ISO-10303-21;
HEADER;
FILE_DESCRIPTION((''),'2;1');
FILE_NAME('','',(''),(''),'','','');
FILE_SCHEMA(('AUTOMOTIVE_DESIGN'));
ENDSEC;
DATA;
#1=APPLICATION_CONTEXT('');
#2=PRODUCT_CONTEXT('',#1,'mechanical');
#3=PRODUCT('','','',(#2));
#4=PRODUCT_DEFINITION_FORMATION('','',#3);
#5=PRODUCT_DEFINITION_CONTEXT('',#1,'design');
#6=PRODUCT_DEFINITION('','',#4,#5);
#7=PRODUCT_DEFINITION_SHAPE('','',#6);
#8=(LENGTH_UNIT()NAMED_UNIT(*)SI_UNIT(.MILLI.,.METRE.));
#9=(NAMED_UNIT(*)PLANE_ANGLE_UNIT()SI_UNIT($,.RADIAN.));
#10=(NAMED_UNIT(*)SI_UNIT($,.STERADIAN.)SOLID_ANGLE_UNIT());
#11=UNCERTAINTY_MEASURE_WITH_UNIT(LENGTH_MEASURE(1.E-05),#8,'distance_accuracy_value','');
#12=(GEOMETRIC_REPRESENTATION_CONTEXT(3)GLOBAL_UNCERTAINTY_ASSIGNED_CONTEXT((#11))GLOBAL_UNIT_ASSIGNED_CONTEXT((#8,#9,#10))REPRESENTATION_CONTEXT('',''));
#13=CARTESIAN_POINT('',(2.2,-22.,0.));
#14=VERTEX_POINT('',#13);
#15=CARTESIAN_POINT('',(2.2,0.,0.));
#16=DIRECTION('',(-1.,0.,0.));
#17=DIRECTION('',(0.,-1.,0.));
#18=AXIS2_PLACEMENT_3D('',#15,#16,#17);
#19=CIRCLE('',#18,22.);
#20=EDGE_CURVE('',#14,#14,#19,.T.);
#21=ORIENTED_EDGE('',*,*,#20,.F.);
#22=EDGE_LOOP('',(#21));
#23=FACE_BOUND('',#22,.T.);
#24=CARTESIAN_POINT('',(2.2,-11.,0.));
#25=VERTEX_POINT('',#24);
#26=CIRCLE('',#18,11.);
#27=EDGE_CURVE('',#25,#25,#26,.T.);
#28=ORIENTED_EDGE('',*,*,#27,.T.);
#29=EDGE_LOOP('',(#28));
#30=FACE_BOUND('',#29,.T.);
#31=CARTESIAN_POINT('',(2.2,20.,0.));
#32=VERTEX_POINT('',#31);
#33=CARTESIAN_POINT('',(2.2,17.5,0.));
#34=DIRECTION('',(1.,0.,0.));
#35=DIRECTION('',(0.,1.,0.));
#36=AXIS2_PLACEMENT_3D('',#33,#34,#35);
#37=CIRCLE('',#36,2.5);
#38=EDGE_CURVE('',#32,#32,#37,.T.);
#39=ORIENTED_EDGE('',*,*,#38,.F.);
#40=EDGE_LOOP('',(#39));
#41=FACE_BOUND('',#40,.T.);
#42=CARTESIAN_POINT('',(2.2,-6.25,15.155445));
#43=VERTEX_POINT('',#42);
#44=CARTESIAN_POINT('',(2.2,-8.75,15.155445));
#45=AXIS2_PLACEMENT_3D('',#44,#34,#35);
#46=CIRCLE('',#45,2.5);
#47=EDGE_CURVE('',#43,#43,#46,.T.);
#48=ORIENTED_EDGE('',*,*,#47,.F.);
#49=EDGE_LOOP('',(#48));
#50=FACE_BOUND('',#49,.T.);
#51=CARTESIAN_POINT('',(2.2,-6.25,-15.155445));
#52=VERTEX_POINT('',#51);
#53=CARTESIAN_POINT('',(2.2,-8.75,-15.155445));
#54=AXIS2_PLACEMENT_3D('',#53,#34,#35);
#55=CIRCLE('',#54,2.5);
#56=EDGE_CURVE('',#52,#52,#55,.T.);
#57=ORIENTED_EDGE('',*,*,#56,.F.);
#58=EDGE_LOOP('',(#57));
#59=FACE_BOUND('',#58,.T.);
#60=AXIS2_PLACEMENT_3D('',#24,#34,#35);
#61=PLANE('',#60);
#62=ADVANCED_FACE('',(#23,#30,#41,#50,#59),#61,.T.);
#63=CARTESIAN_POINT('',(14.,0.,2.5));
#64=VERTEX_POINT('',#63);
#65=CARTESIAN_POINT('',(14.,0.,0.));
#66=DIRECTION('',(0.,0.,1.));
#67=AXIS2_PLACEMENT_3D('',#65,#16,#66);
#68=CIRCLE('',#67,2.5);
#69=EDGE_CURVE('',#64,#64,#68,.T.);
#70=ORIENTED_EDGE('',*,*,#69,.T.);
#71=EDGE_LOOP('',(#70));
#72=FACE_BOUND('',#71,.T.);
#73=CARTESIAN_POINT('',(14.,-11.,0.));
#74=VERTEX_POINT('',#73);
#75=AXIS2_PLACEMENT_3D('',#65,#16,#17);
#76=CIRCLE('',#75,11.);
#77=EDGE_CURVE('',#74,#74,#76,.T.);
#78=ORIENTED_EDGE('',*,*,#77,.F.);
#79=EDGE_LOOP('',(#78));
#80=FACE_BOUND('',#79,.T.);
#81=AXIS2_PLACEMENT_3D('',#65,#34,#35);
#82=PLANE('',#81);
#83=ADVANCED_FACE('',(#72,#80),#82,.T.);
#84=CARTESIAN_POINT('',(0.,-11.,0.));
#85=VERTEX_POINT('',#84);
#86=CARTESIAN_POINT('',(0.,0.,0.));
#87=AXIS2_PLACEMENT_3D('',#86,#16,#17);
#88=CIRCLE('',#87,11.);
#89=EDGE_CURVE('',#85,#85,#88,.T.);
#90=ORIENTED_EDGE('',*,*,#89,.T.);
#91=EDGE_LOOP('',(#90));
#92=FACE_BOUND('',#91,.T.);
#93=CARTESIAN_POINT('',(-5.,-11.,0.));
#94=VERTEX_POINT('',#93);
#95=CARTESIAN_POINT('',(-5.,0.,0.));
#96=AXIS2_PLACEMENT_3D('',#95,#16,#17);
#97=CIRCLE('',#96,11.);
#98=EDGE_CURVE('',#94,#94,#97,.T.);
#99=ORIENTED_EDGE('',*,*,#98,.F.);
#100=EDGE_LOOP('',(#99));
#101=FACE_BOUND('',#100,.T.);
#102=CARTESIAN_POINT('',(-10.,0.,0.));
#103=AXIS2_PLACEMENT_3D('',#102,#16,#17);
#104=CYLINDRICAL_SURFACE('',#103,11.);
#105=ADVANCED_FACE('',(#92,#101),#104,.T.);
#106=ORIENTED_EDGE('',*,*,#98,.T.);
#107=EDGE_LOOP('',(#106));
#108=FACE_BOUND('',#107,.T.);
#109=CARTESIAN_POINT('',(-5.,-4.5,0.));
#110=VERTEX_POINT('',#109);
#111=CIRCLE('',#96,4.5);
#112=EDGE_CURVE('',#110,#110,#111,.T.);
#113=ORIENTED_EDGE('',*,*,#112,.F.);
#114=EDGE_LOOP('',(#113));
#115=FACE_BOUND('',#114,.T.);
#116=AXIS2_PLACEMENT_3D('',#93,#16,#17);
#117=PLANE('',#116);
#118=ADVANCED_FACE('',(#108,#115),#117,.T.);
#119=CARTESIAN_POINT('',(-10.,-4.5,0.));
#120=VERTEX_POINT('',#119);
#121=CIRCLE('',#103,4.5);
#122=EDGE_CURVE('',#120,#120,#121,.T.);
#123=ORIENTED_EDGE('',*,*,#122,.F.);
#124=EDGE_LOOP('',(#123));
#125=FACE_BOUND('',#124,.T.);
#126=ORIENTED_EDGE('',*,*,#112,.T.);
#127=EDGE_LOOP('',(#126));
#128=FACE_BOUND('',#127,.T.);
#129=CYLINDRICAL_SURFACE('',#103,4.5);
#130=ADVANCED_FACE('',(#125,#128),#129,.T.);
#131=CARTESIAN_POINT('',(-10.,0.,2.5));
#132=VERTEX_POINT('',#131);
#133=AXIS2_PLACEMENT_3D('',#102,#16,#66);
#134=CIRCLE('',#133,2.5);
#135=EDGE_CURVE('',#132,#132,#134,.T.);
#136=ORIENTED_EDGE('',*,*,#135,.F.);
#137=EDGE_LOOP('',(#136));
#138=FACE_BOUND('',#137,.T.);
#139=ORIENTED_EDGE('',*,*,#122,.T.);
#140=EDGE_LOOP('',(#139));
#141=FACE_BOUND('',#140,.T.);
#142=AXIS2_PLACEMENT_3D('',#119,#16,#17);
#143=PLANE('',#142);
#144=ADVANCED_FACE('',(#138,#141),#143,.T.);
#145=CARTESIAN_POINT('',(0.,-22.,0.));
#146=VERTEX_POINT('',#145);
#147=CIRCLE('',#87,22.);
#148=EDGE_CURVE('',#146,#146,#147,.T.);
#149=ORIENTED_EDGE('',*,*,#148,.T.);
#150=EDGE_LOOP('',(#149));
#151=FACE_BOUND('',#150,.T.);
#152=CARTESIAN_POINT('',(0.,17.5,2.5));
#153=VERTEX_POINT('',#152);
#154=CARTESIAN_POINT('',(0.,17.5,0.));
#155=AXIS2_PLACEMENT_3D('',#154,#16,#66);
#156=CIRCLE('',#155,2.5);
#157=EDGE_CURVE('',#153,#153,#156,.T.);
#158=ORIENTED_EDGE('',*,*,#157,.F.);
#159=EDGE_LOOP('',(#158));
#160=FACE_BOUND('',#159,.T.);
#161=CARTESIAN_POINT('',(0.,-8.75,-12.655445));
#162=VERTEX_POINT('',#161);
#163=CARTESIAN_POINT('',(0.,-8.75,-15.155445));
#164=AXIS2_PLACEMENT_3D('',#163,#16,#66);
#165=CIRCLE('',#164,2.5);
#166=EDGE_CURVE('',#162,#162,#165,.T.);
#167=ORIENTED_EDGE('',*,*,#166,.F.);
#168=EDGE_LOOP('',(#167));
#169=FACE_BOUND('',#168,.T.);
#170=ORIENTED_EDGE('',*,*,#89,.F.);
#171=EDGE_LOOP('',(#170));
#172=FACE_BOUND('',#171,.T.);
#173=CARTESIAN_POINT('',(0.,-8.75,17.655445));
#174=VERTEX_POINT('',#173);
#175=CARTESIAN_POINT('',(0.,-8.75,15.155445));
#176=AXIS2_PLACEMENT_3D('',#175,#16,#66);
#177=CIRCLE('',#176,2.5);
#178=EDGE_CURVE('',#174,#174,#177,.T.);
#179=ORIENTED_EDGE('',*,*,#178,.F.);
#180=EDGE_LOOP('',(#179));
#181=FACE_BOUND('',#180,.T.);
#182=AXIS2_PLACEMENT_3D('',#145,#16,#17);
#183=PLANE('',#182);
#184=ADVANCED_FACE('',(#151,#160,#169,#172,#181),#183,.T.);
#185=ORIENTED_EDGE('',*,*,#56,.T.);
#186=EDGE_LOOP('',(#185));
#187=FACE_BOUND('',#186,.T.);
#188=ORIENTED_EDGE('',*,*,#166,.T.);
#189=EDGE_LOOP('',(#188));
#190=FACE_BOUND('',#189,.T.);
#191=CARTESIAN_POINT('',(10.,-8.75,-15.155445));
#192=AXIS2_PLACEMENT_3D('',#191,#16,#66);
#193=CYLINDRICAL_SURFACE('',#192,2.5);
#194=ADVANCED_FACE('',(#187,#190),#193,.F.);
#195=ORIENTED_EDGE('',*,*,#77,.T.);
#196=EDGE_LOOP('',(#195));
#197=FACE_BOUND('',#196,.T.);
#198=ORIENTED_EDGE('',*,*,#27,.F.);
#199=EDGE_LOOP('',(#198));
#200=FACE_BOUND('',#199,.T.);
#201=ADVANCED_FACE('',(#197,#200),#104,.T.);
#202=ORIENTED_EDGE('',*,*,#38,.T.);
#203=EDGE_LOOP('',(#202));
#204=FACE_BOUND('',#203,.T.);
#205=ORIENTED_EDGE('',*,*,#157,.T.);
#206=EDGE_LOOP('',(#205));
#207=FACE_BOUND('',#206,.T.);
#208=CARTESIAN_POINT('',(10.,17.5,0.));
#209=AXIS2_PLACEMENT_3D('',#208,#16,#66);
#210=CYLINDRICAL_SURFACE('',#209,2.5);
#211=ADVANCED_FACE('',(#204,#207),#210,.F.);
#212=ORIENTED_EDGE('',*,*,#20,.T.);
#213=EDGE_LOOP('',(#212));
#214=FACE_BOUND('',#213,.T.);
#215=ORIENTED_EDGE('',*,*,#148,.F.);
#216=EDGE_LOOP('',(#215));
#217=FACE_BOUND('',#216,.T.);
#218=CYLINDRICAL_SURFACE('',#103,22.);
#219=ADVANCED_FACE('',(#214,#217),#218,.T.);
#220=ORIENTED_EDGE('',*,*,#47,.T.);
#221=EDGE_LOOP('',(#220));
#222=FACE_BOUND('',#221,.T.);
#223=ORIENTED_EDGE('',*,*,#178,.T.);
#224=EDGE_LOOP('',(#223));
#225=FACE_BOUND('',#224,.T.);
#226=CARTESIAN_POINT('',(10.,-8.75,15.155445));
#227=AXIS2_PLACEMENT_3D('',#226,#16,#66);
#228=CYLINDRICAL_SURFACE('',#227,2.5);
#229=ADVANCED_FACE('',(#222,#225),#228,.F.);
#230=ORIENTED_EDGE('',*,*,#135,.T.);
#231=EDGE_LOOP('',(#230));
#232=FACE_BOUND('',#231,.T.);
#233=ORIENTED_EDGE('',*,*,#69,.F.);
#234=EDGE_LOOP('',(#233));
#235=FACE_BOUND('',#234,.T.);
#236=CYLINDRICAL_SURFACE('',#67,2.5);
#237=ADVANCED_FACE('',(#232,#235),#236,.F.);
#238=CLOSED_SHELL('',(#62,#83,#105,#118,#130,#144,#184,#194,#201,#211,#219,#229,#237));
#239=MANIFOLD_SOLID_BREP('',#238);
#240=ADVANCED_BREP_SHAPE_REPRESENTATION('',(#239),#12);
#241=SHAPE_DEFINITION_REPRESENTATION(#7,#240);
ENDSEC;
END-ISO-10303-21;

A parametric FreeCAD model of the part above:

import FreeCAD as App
import Part
import Sketcher
from FreeCAD import Vector
Q = App.Units.Quantity

doc = App.newDocument("Part")
body = doc.addObject("PartDesign::Body", "Body")

sketch1 = body.newObject("Sketcher::SketchObject", "Sketch")
sketch1.AttachmentSupport = (doc.getObject("XY_Plane"), [""])
sketch1.MapMode = "FlatFace"
sketch1.addGeometry(Part.LineSegment(Vector(14, 0, 0), Vector(-10, 0, 0)), False)
sketch1.addGeometry(Part.LineSegment(Vector(-10, 0, 0), Vector(-10, -4.5, 0)), False)
sketch1.addGeometry(Part.LineSegment(Vector(-10, -4.5, 0), Vector(-5, -4.5, 0)), False)
sketch1.addGeometry(Part.LineSegment(Vector(-5, -4.5, 0), Vector(-5, -11, 0)), False)
sketch1.addGeometry(Part.LineSegment(Vector(-5, -11, 0), Vector(0, -11, 0)), False)
sketch1.addGeometry(Part.LineSegment(Vector(0, -11, 0), Vector(0, -22, 0)), False)
sketch1.addGeometry(Part.LineSegment(Vector(0, -22, 0), Vector(2.2, -22, 0)), False)
sketch1.addGeometry(Part.LineSegment(Vector(2.2, -22, 0), Vector(2.2, -11, 0)), False)
sketch1.addGeometry(Part.LineSegment(Vector(2.2, -11, 0), Vector(14, -11, 0)), False)
sketch1.addGeometry(Part.LineSegment(Vector(14, -11, 0), Vector(14, 0, 0)), False)
sketch1.addConstraint(Sketcher.Constraint("Coincident", 0, 2, 1, 1))
sketch1.addConstraint(Sketcher.Constraint("Coincident", 1, 2, 2, 1))
sketch1.addConstraint(Sketcher.Constraint("Coincident", 2, 2, 3, 1))
sketch1.addConstraint(Sketcher.Constraint("Coincident", 3, 2, 4, 1))
sketch1.addConstraint(Sketcher.Constraint("Coincident", 4, 2, 5, 1))
sketch1.addConstraint(Sketcher.Constraint("Coincident", 5, 2, 6, 1))
sketch1.addConstraint(Sketcher.Constraint("Coincident", 6, 2, 7, 1))
sketch1.addConstraint(Sketcher.Constraint("Coincident", 7, 2, 8, 1))
sketch1.addConstraint(Sketcher.Constraint("Coincident", 8, 2, 9, 1))
sketch1.addConstraint(Sketcher.Constraint("Coincident", 9, 2, 0, 1))
sketch1.addConstraint(Sketcher.Constraint("Horizontal", 0))
sketch1.addConstraint(Sketcher.Constraint("Vertical", 1))
sketch1.addConstraint(Sketcher.Constraint("Horizontal", 2))
sketch1.addConstraint(Sketcher.Constraint("Vertical", 3))
sketch1.addConstraint(Sketcher.Constraint("Horizontal", 4))
sketch1.addConstraint(Sketcher.Constraint("Vertical", 5))
sketch1.addConstraint(Sketcher.Constraint("Horizontal", 6))
sketch1.addConstraint(Sketcher.Constraint("Vertical", 7))
sketch1.addConstraint(Sketcher.Constraint("Horizontal", 8))
sketch1.addConstraint(Sketcher.Constraint("Vertical", 9))
sketch1.addConstraint(Sketcher.Constraint("PointOnObject", 0, 2, -1))
sketch1.addConstraint(Sketcher.Constraint("PointOnObject", 4, 2, -2))
sketch1.addConstraint(Sketcher.Constraint("Horizontal", 4, 2, 7, 2))
sketch1.addConstraint(Sketcher.Constraint("Equal", 2, 4))
sketch1.addConstraint(Sketcher.Constraint("Equal", 7, 9))
sketch1.addConstraint(Sketcher.Constraint("DistanceX", 0, 2, 0, 1, Q("24 mm")))
sketch1.addConstraint(Sketcher.Constraint("DistanceX", 2, 1, 2, 2, Q("5 mm")))
sketch1.addConstraint(Sketcher.Constraint("DistanceY", 5, 2, 5, 1, Q("11 mm")))
sketch1.addConstraint(Sketcher.Constraint("DistanceX", 6, 1, 6, 2, Q("2.2 mm")))
sketch1.addConstraint(Sketcher.Constraint("DistanceY", 1, 2, 1, 1, Q("4.5 mm")))
revolution = body.newObject("PartDesign::Revolution", "Revolution")
revolution.Profile = sketch1
revolution.ReferenceAxis = (sketch1, ["H_Axis"])
revolution.Angle = 360

sketch2 = body.newObject("Sketcher::SketchObject", "Sketch001")
sketch2.AttachmentSupport = (doc.getObject("YZ_Plane"), [""])
sketch2.MapMode = "FlatFace"
sketch2.addGeometry(Part.Circle(Vector(17.5, 0, 0), Vector(0, 0, 1), 2.5), False)
sketch2.addGeometry(Part.Circle(Vector(-8.8, 15.2, 0), Vector(0, 0, 1), 2.5), False)
sketch2.addGeometry(Part.Circle(Vector(-8.8, -15.2, 0), Vector(0, 0, 1), 2.5), False)
sketch2.addConstraint(Sketcher.Constraint("Equal", 0, 1))
sketch2.addConstraint(Sketcher.Constraint("Equal", 1, 2))
sketch2.addConstraint(Sketcher.Constraint("Symmetric", 1, 3, 2, 3, -1))
sketch2.addConstraint(Sketcher.Constraint("PointOnObject", 0, 3, -1))
sketch2.addConstraint(Sketcher.Constraint("Diameter", 0, Q("5 mm")))
sketch2.addConstraint(Sketcher.Constraint("DistanceX", -1, 1, 0, 3, Q("17.5 mm")))
sketch2.addConstraint(Sketcher.Constraint("DistanceX", 1, 3, -1, 1, Q("8.75 mm")))
sketch2.addConstraint(Sketcher.Constraint("DistanceY", 2, 3, 1, 3, Q("30.310889 mm")))
pocket1 = body.newObject("PartDesign::Pocket", "Pocket")
pocket1.Profile = sketch2
pocket1.Length = 10
pocket1.Reversed = True

sketch3 = body.newObject("Sketcher::SketchObject", "Sketch002")
sketch3.AttachmentSupport = (doc.getObject("YZ_Plane"), [""])
sketch3.MapMode = "FlatFace"
sketch3.AttachmentOffset = App.Placement(Vector(0, 0, -10), App.Rotation())
sketch3.addGeometry(Part.Circle(Vector(0, 0, 0), Vector(0, 0, 1), 2.5), False)
sketch3.addConstraint(Sketcher.Constraint("Coincident", 0, 3, -1, 1))
sketch3.addConstraint(Sketcher.Constraint("Diameter", 0, Q("5 mm")))
pocket2 = body.newObject("PartDesign::Pocket", "Pocket001")
pocket2.Profile = sketch3
pocket2.Type = "ThroughAll"
pocket2.Reversed = True

doc.recompute()
